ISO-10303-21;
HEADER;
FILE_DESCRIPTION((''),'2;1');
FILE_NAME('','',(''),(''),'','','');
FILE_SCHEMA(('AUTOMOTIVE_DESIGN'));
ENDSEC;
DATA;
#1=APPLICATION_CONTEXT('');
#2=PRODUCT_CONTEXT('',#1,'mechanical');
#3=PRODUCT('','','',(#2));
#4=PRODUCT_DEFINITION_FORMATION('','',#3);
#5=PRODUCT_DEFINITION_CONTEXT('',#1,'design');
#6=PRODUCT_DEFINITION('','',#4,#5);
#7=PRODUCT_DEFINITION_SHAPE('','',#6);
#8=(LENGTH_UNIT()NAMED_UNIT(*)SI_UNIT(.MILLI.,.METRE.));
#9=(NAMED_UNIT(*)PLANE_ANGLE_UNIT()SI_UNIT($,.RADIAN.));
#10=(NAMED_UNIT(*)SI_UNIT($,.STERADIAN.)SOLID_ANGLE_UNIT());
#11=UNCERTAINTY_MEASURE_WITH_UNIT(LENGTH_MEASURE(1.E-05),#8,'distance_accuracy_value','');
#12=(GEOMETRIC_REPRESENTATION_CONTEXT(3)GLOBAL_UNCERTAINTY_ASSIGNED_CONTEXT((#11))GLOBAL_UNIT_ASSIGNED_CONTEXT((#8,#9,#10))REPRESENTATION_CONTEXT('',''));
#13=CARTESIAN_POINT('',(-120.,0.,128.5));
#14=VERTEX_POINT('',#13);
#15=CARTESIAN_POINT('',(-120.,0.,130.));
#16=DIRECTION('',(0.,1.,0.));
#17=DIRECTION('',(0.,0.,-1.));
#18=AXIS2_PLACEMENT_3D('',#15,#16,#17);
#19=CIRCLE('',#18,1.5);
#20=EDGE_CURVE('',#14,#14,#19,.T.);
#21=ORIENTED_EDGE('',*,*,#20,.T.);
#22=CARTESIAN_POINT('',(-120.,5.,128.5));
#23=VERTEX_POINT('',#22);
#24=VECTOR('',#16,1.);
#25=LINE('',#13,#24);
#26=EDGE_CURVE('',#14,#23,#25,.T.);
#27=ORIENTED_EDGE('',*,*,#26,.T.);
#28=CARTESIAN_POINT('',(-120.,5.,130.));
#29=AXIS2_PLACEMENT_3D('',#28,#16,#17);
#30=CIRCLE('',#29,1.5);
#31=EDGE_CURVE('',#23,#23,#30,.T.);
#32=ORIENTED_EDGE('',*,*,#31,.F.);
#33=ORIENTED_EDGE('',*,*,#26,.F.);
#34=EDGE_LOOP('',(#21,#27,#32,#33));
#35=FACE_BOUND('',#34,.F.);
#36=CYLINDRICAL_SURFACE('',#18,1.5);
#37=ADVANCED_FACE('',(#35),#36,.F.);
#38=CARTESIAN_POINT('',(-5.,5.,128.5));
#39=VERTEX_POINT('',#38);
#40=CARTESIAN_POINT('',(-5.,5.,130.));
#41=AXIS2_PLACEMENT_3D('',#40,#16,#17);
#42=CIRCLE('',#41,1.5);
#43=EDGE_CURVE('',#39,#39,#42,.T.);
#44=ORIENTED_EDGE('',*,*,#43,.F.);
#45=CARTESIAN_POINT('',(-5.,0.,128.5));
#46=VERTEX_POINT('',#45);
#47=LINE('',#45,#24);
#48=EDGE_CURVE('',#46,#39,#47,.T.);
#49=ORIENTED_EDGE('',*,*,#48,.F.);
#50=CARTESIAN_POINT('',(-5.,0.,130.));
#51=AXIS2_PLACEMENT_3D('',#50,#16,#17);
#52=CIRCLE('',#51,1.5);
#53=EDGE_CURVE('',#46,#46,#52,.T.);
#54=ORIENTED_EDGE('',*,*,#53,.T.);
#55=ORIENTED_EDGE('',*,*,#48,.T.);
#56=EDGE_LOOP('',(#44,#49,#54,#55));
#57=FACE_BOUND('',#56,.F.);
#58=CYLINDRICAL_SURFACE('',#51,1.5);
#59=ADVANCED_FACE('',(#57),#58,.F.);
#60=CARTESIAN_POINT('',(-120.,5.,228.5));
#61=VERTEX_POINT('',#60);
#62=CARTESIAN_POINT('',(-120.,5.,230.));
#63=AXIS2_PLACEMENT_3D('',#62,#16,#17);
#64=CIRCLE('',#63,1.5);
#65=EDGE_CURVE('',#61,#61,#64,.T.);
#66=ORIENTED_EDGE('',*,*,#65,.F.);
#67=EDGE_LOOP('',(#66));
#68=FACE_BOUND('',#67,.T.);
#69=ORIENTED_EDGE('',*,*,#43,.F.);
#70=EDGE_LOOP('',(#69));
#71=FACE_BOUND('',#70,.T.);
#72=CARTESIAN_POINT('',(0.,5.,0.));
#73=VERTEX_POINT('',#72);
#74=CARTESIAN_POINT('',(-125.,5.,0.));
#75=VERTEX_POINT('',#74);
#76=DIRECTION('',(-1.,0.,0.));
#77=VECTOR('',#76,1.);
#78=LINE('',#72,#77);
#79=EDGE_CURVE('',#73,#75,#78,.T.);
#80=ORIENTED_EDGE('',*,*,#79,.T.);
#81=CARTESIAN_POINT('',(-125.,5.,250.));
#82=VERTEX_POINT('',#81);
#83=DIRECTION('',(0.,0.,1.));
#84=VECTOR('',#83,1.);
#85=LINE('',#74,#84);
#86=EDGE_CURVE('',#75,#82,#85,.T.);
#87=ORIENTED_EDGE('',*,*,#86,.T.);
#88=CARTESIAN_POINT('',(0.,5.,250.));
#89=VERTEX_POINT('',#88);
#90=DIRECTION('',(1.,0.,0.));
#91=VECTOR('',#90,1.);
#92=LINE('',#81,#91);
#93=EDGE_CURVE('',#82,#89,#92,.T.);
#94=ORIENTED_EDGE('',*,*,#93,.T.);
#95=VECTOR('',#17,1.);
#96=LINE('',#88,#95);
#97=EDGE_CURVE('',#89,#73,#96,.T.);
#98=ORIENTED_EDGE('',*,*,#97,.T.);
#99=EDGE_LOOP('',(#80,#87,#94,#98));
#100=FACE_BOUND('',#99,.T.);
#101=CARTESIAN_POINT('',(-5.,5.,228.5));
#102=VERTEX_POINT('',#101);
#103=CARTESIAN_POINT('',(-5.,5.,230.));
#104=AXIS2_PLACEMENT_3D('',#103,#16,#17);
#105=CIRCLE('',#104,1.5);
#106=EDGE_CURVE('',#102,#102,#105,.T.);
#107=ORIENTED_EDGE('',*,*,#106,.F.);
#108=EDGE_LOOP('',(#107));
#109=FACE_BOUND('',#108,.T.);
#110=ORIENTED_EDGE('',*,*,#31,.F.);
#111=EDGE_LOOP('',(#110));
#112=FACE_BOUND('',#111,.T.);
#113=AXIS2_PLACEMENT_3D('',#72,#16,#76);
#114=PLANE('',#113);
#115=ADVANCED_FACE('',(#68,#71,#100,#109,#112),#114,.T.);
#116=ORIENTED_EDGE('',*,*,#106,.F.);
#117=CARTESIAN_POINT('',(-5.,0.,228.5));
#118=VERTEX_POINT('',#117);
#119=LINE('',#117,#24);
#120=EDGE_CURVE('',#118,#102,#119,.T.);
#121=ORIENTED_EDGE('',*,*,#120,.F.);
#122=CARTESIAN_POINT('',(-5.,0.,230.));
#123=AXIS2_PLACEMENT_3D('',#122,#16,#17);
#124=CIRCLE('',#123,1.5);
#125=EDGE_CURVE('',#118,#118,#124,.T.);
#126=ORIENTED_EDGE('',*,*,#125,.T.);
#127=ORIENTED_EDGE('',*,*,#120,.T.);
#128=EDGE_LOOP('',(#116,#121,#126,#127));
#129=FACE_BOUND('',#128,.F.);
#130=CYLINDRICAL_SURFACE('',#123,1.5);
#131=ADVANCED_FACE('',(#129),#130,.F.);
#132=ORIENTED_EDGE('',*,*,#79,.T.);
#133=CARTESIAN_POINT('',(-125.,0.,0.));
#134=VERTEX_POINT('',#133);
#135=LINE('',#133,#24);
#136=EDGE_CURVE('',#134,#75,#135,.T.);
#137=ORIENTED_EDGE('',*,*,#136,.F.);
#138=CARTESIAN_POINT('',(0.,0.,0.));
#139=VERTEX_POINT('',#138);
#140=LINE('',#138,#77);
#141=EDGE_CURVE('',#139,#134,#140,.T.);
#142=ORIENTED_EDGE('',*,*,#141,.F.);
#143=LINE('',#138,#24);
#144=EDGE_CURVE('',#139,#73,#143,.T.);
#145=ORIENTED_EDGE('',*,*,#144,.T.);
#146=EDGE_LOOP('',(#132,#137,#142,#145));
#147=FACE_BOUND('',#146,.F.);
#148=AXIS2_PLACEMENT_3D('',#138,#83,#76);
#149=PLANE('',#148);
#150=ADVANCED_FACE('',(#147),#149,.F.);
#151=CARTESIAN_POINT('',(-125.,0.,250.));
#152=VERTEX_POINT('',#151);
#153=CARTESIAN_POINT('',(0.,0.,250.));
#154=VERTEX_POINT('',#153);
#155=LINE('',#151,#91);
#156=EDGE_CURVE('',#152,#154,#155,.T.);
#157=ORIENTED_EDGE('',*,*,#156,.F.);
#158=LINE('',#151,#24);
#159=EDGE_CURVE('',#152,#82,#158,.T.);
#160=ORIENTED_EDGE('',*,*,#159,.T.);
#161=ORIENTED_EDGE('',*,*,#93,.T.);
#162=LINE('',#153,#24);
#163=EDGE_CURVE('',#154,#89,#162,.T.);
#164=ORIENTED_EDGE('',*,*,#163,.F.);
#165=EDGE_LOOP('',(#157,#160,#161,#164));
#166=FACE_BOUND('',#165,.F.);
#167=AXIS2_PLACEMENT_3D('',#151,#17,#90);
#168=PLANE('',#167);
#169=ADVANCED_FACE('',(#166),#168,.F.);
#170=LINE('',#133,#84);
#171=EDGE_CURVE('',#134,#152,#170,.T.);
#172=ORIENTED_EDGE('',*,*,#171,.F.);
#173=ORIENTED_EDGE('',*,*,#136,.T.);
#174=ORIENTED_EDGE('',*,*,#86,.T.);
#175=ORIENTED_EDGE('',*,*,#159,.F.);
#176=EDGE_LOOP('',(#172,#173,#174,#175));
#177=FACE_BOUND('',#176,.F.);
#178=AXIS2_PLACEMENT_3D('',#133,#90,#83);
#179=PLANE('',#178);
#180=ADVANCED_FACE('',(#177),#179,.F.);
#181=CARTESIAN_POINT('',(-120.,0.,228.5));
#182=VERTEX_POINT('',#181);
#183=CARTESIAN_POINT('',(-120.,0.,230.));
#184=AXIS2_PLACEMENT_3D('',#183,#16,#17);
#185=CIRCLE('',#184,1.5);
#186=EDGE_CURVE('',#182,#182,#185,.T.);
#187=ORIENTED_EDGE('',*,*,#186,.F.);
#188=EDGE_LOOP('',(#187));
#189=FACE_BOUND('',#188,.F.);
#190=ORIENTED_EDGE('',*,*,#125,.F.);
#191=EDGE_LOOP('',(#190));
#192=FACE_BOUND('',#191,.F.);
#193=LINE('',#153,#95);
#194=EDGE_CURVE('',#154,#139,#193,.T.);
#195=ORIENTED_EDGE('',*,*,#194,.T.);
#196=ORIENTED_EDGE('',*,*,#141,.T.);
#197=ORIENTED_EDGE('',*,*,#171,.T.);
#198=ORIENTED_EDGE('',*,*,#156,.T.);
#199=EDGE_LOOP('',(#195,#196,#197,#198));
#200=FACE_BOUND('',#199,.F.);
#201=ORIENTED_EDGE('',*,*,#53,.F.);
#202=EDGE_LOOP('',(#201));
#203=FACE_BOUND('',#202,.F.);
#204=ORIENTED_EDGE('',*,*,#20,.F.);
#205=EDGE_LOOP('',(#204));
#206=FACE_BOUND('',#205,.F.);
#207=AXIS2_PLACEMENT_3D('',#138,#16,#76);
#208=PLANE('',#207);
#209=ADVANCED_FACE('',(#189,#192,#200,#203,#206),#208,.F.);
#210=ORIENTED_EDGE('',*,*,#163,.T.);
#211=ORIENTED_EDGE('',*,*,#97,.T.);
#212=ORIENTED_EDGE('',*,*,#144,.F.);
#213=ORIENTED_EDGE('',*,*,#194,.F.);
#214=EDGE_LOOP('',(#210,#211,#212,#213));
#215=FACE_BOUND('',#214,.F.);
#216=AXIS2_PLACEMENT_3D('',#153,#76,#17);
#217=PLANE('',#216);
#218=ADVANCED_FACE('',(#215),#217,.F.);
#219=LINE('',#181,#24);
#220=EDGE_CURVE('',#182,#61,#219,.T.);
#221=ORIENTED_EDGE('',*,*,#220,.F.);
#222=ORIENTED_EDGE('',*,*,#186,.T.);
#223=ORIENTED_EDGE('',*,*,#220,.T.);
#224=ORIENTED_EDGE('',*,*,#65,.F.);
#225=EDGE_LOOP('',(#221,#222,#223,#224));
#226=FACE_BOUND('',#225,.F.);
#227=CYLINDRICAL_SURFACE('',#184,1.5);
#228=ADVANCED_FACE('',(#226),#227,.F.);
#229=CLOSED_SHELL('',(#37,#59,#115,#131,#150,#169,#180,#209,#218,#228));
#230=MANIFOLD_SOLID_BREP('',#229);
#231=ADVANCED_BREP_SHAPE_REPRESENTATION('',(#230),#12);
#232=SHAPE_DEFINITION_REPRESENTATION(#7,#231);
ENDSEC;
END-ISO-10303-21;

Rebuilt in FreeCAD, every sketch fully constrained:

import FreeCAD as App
import Part
import Sketcher
from FreeCAD import Vector
Q = App.Units.Quantity

doc = App.newDocument("Part")
body = doc.addObject("PartDesign::Body", "Body")

# Sketch on XZ plane
sketch1 = body.newObject("Sketcher::SketchObject", "Sketch")
sketch1.AttachmentSupport = (doc.getObject("XZ_Plane"), [""])
sketch1.MapMode = "FlatFace"
sketch1.addGeometry([
    Part.LineSegment(Vector(0, 250, 0), Vector(0, 0, 0)),
    Part.LineSegment(Vector(0, 0, 0), Vector(-125, 0, 0)),
    Part.LineSegment(Vector(-125, 0, 0), Vector(-125, 250, 0)),
    Part.LineSegment(Vector(-125, 250, 0), Vector(0, 250, 0)),
], False)
sketch1.addConstraint([
    Sketcher.Constraint("Coincident", 0, 2, 1, 1),
    Sketcher.Constraint("Coincident", 1, 2, 2, 1),
    Sketcher.Constraint("Coincident", 2, 2, 3, 1),
    Sketcher.Constraint("Coincident", 3, 2, 0, 1),
    Sketcher.Constraint("Vertical", 0),
    Sketcher.Constraint("Horizontal", 1),
    Sketcher.Constraint("Vertical", 2),
    Sketcher.Constraint("Horizontal", 3),
    Sketcher.Constraint("Coincident", 0, 2, -1, 1),
    Sketcher.Constraint("DistanceX", 1, 2, 1, 1, Q("125 mm")),
    Sketcher.Constraint("DistanceY", 0, 2, 0, 1, Q("250 mm")),
])
pad1 = body.newObject("PartDesign::Pad", "Pad")
pad1.Profile = sketch1
pad1.Length = 5
pad1.Reversed = True

# Sketch on XZ plane
sketch2 = body.newObject("Sketcher::SketchObject", "Sketch001")
sketch2.AttachmentSupport = (doc.getObject("XZ_Plane"), [""])
sketch2.MapMode = "FlatFace"
sketch2.addGeometry([
    Part.Circle(Vector(-5, 230, 0), Vector(0, 0, 1), 1.5),
    Part.Circle(Vector(-5, 130, 0), Vector(0, 0, 1), 1.5),
    Part.Circle(Vector(-120, 230, 0), Vector(0, 0, 1), 1.5),
    Part.Circle(Vector(-120, 130, 0), Vector(0, 0, 1), 1.5),
], False)
sketch2.addConstraint([
    Sketcher.Constraint("Equal", 0, 1),
    Sketcher.Constraint("Equal", 1, 2),
    Sketcher.Constraint("Equal", 2, 3),
    Sketcher.Constraint("Horizontal", 0, 3, 2, 3),
    Sketcher.Constraint("Horizontal", 1, 3, 3, 3),
    Sketcher.Constraint("Vertical", 0, 3, 1, 3),
    Sketcher.Constraint("Vertical", 2, 3, 3, 3),
    Sketcher.Constraint("Diameter", 0, Q("3 mm")),
    Sketcher.Constraint("DistanceX", 0, 3, -1, 1, Q("5 mm")),
    Sketcher.Constraint("DistanceY", -1, 1, 0, 3, Q("230 mm")),
    Sketcher.Constraint("DistanceY", -1, 1, 1, 3, Q("130 mm")),
    Sketcher.Constraint("DistanceX", 2, 3, -1, 1, Q("120 mm")),
])
doc.recompute()
hole = body.newObject("PartDesign::Hole", "Hole")
hole.Profile = sketch2
hole.ThreadType = "None"
hole.Diameter = 3
hole.DepthType = "ThroughAll"

doc.recompute()
